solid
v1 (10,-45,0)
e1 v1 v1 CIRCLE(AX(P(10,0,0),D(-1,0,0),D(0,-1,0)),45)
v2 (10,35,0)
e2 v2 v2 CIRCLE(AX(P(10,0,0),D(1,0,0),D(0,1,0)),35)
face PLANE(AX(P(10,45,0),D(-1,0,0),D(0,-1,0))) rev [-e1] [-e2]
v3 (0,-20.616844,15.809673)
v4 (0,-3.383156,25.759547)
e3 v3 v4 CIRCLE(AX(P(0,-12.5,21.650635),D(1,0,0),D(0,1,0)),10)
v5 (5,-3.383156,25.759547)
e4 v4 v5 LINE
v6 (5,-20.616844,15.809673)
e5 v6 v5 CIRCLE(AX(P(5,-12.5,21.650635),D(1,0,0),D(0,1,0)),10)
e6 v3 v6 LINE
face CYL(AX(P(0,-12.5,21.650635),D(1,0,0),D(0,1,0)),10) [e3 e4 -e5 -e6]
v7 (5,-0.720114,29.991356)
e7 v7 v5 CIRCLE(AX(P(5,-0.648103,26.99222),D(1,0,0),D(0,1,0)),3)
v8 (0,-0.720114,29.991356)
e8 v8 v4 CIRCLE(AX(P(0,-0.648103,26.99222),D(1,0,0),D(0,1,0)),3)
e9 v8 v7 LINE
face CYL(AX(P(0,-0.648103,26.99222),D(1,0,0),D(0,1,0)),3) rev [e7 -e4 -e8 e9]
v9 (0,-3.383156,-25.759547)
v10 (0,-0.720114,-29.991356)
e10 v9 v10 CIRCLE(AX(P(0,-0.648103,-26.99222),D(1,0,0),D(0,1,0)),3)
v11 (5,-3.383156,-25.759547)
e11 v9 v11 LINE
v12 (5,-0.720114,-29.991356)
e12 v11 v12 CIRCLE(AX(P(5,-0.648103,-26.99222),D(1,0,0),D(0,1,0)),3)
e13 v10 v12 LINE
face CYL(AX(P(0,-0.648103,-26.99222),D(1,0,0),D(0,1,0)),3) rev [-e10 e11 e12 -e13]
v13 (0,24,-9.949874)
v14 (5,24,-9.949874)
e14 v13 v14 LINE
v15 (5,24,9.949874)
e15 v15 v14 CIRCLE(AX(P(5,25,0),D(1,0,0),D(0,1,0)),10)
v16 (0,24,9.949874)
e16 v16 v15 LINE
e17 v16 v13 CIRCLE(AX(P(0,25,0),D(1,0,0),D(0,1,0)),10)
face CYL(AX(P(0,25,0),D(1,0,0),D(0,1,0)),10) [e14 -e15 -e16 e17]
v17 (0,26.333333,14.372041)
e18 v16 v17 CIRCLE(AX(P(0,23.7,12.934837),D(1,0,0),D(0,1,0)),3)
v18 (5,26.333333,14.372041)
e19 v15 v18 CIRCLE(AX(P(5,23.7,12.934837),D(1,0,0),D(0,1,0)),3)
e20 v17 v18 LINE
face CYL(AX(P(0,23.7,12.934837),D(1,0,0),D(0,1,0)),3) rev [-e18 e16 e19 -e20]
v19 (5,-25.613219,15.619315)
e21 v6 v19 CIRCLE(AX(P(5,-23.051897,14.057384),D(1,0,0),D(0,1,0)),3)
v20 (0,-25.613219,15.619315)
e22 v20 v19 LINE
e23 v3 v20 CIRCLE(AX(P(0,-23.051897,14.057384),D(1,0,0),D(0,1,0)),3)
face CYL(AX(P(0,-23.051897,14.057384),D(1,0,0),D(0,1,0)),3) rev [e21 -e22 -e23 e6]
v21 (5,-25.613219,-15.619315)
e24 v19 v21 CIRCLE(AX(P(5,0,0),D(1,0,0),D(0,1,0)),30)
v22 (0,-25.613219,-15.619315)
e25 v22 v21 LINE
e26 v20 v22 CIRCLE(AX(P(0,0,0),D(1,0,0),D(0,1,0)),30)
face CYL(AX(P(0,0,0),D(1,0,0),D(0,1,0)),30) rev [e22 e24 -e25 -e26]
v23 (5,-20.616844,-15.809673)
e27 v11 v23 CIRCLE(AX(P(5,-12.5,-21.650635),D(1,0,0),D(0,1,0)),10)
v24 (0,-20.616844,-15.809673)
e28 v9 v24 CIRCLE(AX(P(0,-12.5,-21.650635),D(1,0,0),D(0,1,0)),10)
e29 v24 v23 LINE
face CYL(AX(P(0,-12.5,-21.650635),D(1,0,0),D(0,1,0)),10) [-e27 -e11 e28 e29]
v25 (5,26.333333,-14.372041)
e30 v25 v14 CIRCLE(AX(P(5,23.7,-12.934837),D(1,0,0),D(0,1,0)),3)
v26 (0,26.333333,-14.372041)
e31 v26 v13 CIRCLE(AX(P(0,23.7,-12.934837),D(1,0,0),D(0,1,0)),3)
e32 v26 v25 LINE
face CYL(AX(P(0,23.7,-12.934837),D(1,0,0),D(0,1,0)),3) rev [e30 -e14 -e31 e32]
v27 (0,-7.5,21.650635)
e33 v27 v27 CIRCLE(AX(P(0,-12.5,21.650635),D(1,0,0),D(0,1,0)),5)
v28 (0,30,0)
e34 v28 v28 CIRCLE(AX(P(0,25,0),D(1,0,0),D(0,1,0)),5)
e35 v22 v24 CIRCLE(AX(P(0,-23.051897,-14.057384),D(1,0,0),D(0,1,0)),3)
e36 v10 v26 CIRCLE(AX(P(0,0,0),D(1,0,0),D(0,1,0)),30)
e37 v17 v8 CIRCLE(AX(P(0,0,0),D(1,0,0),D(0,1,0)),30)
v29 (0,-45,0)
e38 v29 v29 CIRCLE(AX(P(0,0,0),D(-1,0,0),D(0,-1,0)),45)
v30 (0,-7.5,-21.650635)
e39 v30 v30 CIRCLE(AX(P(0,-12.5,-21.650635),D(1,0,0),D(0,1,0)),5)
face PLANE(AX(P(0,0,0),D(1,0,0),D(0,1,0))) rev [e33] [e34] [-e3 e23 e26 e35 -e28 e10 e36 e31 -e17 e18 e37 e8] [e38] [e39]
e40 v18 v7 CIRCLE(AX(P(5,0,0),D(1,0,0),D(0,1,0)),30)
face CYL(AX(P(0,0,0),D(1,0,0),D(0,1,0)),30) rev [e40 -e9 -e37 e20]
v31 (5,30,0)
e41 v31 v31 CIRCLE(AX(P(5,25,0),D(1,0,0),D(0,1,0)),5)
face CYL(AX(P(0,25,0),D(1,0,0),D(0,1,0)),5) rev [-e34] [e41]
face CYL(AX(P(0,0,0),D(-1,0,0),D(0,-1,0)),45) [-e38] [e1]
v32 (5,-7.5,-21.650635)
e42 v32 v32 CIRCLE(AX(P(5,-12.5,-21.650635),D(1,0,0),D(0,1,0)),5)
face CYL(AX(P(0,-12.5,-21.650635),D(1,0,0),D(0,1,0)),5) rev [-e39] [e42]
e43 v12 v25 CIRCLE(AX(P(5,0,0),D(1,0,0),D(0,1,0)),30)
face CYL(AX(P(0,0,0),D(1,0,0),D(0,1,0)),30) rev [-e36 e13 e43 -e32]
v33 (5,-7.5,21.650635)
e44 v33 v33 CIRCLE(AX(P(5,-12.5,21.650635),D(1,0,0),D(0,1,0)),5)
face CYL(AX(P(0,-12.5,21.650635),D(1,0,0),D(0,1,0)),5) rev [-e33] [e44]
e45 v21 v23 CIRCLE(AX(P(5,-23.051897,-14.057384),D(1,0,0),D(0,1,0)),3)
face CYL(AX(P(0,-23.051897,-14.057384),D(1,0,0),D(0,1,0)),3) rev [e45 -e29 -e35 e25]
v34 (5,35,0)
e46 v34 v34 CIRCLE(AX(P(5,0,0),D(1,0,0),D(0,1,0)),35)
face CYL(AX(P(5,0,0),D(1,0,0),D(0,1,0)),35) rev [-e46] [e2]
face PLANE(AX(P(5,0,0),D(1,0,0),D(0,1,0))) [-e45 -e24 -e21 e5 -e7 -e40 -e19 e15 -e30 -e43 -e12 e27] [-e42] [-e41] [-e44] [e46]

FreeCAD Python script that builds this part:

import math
import FreeCAD as App
import Part
import Sketcher
from FreeCAD import Vector
Q = App.Units.Quantity

doc = App.newDocument("Part")
body = doc.addObject("PartDesign::Body", "Body")

# Sketch on XY plane
sketch1 = body.newObject("Sketcher::SketchObject", "Sketch")
sketch1.AttachmentSupport = (doc.getObject("XY_Plane"), [""])
sketch1.MapMode = "FlatFace"
sketch1.addGeometry([
    Part.LineSegment(Vector(0, 45, 0), Vector(0, 0, 0)),
    Part.LineSegment(Vector(0, 0, 0), Vector(10, 0, 0)),
    Part.LineSegment(Vector(10, 0, 0), Vector(10, 45, 0)),
    Part.LineSegment(Vector(10, 45, 0), Vector(0, 45, 0)),
], False)
sketch1.addConstraint([
    Sketcher.Constraint("Coincident", 0, 2, 1, 1),
    Sketcher.Constraint("Coincident", 1, 2, 2, 1),
    Sketcher.Constraint("Coincident", 2, 2, 3, 1),
    Sketcher.Constraint("Coincident", 3, 2, 0, 1),
    Sketcher.Constraint("Vertical", 0),
    Sketcher.Constraint("Horizontal", 1),
    Sketcher.Constraint("Vertical", 2),
    Sketcher.Constraint("Horizontal", 3),
    Sketcher.Constraint("Coincident", 0, 2, -1, 1),
    Sketcher.Constraint("DistanceX", 1, 1, 1, 2, Q("10 mm")),
    Sketcher.Constraint("DistanceY", 0, 2, 0, 1, Q("45 mm")),
])
revolution = body.newObject("PartDesign::Revolution", "Revolution")
revolution.Profile = sketch1
revolution.ReferenceAxis = (sketch1, ["H_Axis"])
revolution.Angle = 360

# Sketch on YZ plane
sketch2 = body.newObject("Sketcher::SketchObject", "Sketch001")
sketch2.AttachmentSupport = (doc.getObject("YZ_Plane"), [""])
sketch2.MapMode = "FlatFace"
sketch2.AttachmentOffset = App.Placement(Vector(0, 0, 10), App.Rotation())
sketch2.addGeometry(Part.Circle(Vector(0, 0, 0), Vector(0, 0, 1), 35), False)
sketch2.addConstraint([
    Sketcher.Constraint("Coincident", 0, 3, -1, 1),
    Sketcher.Constraint("Diameter", 0, Q("70 mm")),
])
pocket1 = body.newObject("PartDesign::Pocket", "Pocket")
pocket1.Profile = sketch2
pocket1.Length = 5

# Sketch on YZ plane
sketch3 = body.newObject("Sketcher::SketchObject", "Sketch002")
sketch3.AttachmentSupport = (doc.getObject("YZ_Plane"), [""])
sketch3.MapMode = "FlatFace"
sketch3.AttachmentOffset = App.Placement(Vector(0, 0, 5), App.Rotation())
sketch3.addGeometry([
    Part.ArcOfCircle(Part.Circle(Vector(0, 0, 0), Vector(0, 0, 1), 30), math.radians(-91), math.radians(-29)),  # 0
    Part.ArcOfCircle(Part.Circle(Vector(23.7, -12.9, 0), Vector(0, 0, 1), 3), math.radians(-29), math.radians(84)),  # 1
    Part.ArcOfCircle(Part.Circle(Vector(25, 0, 0), Vector(0, 0, 1), 10), math.radians(96), math.radians(264)),  # 2
    Part.ArcOfCircle(Part.Circle(Vector(23.7, 12.9, 0), Vector(0, 0, 1), 3), math.radians(-84), math.radians(29)),  # 3
    Part.ArcOfCircle(Part.Circle(Vector(0, 0, 0), Vector(0, 0, 1), 30), math.radians(29), math.radians(91)),  # 4
    Part.ArcOfCircle(Part.Circle(Vector(-0.6, 27, 0), Vector(0, 0, 1), 3), math.radians(91), math.radians(204)),  # 5
    Part.ArcOfCircle(Part.Circle(Vector(-12.5, 21.7, 0), Vector(0, 0, 1), 10), math.radians(-144), math.radians(24)),  # 6
    Part.ArcOfCircle(Part.Circle(Vector(-23.1, 14.1, 0), Vector(0, 0, 1), 3), math.radians(36), math.radians(149)),  # 7
    Part.ArcOfCircle(Part.Circle(Vector(0, 0, 0), Vector(0, 0, 1), 30), math.radians(149), math.radians(211)),  # 8
    Part.ArcOfCircle(Part.Circle(Vector(-23.1, -14.1, 0), Vector(0, 0, 1), 3), math.radians(-149), math.radians(-36)),  # 9
    Part.ArcOfCircle(Part.Circle(Vector(-12.5, -21.7, 0), Vector(0, 0, 1), 10), math.radians(-24), math.radians(144)),  # 10
    Part.ArcOfCircle(Part.Circle(Vector(-0.6, -27, 0), Vector(0, 0, 1), 3), math.radians(156), math.radians(269)),  # 11
    Part.Circle(Vector(25, 0, 0), Vector(0, 0, 1), 5),  # 12
    Part.Circle(Vector(-12.5, -21.7, 0), Vector(0, 0, 1), 5),  # 13
    Part.Circle(Vector(-12.5, 21.7, 0), Vector(0, 0, 1), 5),  # 14
], False)
sketch3.addConstraint([
    Sketcher.Constraint("Tangent", 0, 2, 1, 1),
    Sketcher.Constraint("Tangent", 1, 2, 2, 2),
    Sketcher.Constraint("Tangent", 2, 1, 3, 1),
    Sketcher.Constraint("Tangent", 3, 2, 4, 1),
    Sketcher.Constraint("Tangent", 4, 2, 5, 1),
    Sketcher.Constraint("Tangent", 5, 2, 6, 2),
    Sketcher.Constraint("Tangent", 6, 1, 7, 1),
    Sketcher.Constraint("Tangent", 7, 2, 8, 1),
    Sketcher.Constraint("Tangent", 8, 2, 9, 1),
    Sketcher.Constraint("Tangent", 9, 2, 10, 2),
    Sketcher.Constraint("Tangent", 10, 1, 11, 1),
    Sketcher.Constraint("Tangent", 11, 2, 0, 1),
    Sketcher.Constraint("Coincident", 0, 3, -1, 1),
    Sketcher.Constraint("Coincident", 4, 3, -1, 1),
    Sketcher.Constraint("Coincident", 8, 3, -1, 1),
    Sketcher.Constraint("Coincident", 12, 3, 2, 3),
    Sketcher.Constraint("Coincident", 13, 3, 10, 3),
    Sketcher.Constraint("Coincident", 14, 3, 6, 3),
    Sketcher.Constraint("Equal", 1, 3),
    Sketcher.Constraint("Equal", 0, 4),
    Sketcher.Constraint("Equal", 3, 5),
    Sketcher.Constraint("Equal", 2, 6),
    Sketcher.Constraint("Equal", 5, 7),
    Sketcher.Constraint("Equal", 4, 8),
    Sketcher.Constraint("Equal", 7, 9),
    Sketcher.Constraint("Equal", 6, 10),
    Sketcher.Constraint("Equal", 9, 11),
    Sketcher.Constraint("Equal", 12, 13),
    Sketcher.Constraint("Equal", 13, 14),
    Sketcher.Constraint("Symmetric", 6, 3, 10, 3, -1),
    Sketcher.Constraint("PointOnObject", 2, 3, -1),
    Sketcher.Constraint("Diameter", 12, Q("10 mm")),
    Sketcher.Constraint("Radius", 0, Q("30 mm")),
    Sketcher.Constraint("Radius", 1, Q("3 mm")),
    Sketcher.Constraint("Radius", 2, Q("10 mm")),
    Sketcher.Constraint("DistanceX", -1, 1, 2, 3, Q("25 mm")),
    Sketcher.Constraint("DistanceX", 6, 3, -1, 1, Q("12.5 mm")),
    Sketcher.Constraint("DistanceY", 3, 3, 6, 3, Q("8.715798 mm")),
])
pocket2 = body.newObject("PartDesign::Pocket", "Pocket001")
pocket2.Profile = sketch3
pocket2.Length = 5

doc.recompute()
